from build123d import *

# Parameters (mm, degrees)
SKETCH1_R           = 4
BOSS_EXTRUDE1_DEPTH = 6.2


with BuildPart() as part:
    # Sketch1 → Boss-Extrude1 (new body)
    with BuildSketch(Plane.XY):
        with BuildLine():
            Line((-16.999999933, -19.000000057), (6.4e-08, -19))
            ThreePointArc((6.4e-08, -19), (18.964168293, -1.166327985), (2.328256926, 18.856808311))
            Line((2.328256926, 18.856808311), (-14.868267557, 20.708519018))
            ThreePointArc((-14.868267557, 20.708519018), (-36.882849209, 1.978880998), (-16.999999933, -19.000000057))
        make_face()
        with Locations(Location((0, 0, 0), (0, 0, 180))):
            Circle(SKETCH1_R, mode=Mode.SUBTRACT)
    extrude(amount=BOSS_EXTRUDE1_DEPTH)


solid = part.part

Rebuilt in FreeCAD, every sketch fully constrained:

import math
import FreeCAD as App
import Part
import Sketcher
from FreeCAD import Vector
Q = App.Units.Quantity

doc = App.newDocument("Part")
body = doc.addObject("PartDesign::Body", "Body")

# Sketch on XY plane
sketch1 = doc.addObject("Sketcher::SketchObject", "Sketch")
body.addObject(sketch1)
sketch1.AttachmentSupport = (doc.XY_Plane, [""])
sketch1.MapMode = "FlatFace"
sketch1.addGeometry(Part.LineSegment(Vector(-17, -19, 0), Vector(0, -19, 0)), False)
sketch1.addGeometry(Part.ArcOfCircle(Part.Circle(Vector(0, 0, 0), Vector(0, 0, 1), 19), math.radians(-90), math.radians(83)), False)
sketch1.addGeometry(Part.LineSegment(Vector(2.3, 18.9, 0), Vector(-14.9, 20.7, 0)), False)
sketch1.addGeometry(Part.ArcOfCircle(Part.Circle(Vector(-17, 0.9, 0), Vector(0, 0, 1), 19.9), math.radians(84), math.radians(270)), False)
sketch1.addGeometry(Part.Circle(Vector(0, 0, 0), Vector(0, 0, 1), 4), False)
sketch1.addConstraint(Sketcher.Constraint("Tangent", 0, 2, 1, 1))
sketch1.addConstraint(Sketcher.Constraint("Coincident", 1, 2, 2, 1))
sketch1.addConstraint(Sketcher.Constraint("Tangent", 2, 2, 3, 1))
sketch1.addConstraint(Sketcher.Constraint("Tangent", 3, 2, 0, 1))
sketch1.addConstraint(Sketcher.Constraint("Horizontal", 0))
sketch1.addConstraint(Sketcher.Constraint("Coincident", 1, 3, -1, 1))
sketch1.addConstraint(Sketcher.Constraint("Coincident", 4, 3, -1, 1))
sketch1.addConstraint(Sketcher.Constraint("Diameter", 4, Q("8 mm")))
sketch1.addConstraint(Sketcher.Constraint("Radius", 1, Q("19 mm")))
sketch1.addConstraint(Sketcher.Constraint("DistanceX", 0, 1, 0, 2, Q("17 mm")))
sketch1.addConstraint(Sketcher.Constraint("Radius", 3, Q("19.91148 mm")))
sketch1.addConstraint(Sketcher.Constraint("DistanceY", -1, 1, 1, 2, Q("18.856808 mm")))
pad1 = doc.addObject("PartDesign::Pad", "Pad")
body.addObject(pad1)
pad1.Profile = sketch1
pad1.Length = 6.2

doc.recompute()
